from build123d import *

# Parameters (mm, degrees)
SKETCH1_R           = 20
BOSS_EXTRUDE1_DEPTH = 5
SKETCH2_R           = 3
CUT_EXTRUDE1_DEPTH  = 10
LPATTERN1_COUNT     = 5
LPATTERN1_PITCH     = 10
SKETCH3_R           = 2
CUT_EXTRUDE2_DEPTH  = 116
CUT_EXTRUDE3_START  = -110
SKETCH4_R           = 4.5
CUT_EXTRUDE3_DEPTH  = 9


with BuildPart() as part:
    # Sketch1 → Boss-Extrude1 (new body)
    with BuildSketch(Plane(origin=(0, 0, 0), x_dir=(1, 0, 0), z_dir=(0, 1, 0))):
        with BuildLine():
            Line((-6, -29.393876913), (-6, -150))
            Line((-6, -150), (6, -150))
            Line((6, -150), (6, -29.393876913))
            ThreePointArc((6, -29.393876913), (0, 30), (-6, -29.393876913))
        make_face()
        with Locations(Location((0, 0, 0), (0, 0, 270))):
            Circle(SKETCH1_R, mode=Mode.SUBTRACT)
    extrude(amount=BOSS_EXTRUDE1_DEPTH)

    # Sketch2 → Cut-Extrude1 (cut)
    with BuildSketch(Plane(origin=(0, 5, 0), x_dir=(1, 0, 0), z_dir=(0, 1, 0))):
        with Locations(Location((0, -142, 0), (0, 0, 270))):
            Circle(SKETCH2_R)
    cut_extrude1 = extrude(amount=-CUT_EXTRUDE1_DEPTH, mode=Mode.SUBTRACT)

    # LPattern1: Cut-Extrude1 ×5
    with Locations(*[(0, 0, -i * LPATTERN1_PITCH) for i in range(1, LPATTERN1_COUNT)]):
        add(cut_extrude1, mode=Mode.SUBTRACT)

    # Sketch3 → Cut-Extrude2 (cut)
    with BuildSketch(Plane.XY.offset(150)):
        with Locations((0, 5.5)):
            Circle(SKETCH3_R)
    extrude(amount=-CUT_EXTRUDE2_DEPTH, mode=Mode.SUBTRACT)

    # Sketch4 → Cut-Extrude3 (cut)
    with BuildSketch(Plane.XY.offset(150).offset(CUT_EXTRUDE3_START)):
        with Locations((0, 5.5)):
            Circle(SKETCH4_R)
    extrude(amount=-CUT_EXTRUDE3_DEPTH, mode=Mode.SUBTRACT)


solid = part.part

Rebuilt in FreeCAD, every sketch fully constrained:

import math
import FreeCAD as App
import Part
import Sketcher
from FreeCAD import Vector

doc = App.newDocument("Part")
body = doc.addObject("PartDesign::Body", "Body")

sketch1 = body.newObject("Sketcher::SketchObject", "Sketch")
sketch1.AttachmentSupport = (doc.getObject("XZ_Plane"), [""])
sketch1.MapMode = "FlatFace"
sketch1.addGeometry(Part.LineSegment(Vector(-6, 29, 0), Vector(-6, 150, 0)), False)
sketch1.addGeometry(Part.LineSegment(Vector(-6, 150, 0), Vector(6, 150, 0)), False)
sketch1.addGeometry(Part.LineSegment(Vector(6, 150, 0), Vector(6, 29, 0)), False)
sketch1.addGeometry(Part.ArcOfCircle(Part.Circle(Vector(0, 0, 0), Vector(0, 0, 1), 30), math.radians(102), math.radians(438)), False)
sketch1.addGeometry(Part.Circle(Vector(0, 0, 0), Vector(0, 0, 1), 20), False)
sketch1.addConstraint(Sketcher.Constraint("Coincident", 0, 2, 1, 1))
sketch1.addConstraint(Sketcher.Constraint("Coincident", 1, 2, 2, 1))
sketch1.addConstraint(Sketcher.Constraint("Coincident", 2, 2, 3, 2))
sketch1.addConstraint(Sketcher.Constraint("Coincident", 3, 1, 0, 1))
sketch1.addConstraint(Sketcher.Constraint("Vertical", 0))
sketch1.addConstraint(Sketcher.Constraint("Horizontal", 1))
sketch1.addConstraint(Sketcher.Constraint("Vertical", 2))
sketch1.addConstraint(Sketcher.Constraint("Coincident", 3, 3, -1, 1))
sketch1.addConstraint(Sketcher.Constraint("Coincident", 4, 3, -1, 1))
sketch1.addConstraint(Sketcher.Constraint("Horizontal", 2, 2, 3, 1))
sketch1.addConstraint(Sketcher.Constraint("Diameter", 4, 40.0))
sketch1.addConstraint(Sketcher.Constraint("Radius", 3, 30.0))
sketch1.addConstraint(Sketcher.Constraint("DistanceX", 1, 1, 1, 2, 12.0))
sketch1.addConstraint(Sketcher.Constraint("DistanceY", -1, 1, 0, 2, 150.0))
pad1 = body.newObject("PartDesign::Pad", "Pad")
pad1.Profile = sketch1
pad1.Length = 5
pad1.Reversed = True

sketch2 = body.newObject("Sketcher::SketchObject", "Sketch001")
sketch2.AttachmentSupport = (doc.getObject("XZ_Plane"), [""])
sketch2.MapMode = "FlatFace"
sketch2.AttachmentOffset = App.Placement(Vector(0, 0, -5), App.Rotation())
sketch2.addGeometry(Part.Circle(Vector(0, 142, 0), Vector(0, 0, 1), 3), False)
sketch2.addConstraint(Sketcher.Constraint("PointOnObject", 0, 3, -2))
sketch2.addConstraint(Sketcher.Constraint("Diameter", 0, 6.0))
sketch2.addConstraint(Sketcher.Constraint("DistanceY", -1, 1, 0, 3, 142.0))
pocket1 = body.newObject("PartDesign::Pocket", "Pocket")
pocket1.Profile = sketch2
pocket1.Length = 10
pocket1.Reversed = True
doc.recompute()

linearpattern = body.newObject("PartDesign::LinearPattern", "LinearPattern")
linearpattern.Originals = [pocket1]
linearpattern.Direction = (doc.getObject("Z_Axis"), [""])
linearpattern.Mode = "offset"
linearpattern.Offset = 10
linearpattern.Occurrences = 5
linearpattern.Reversed = True
body.Tip = linearpattern

sketch3 = body.newObject("Sketcher::SketchObject", "Sketch002")
sketch3.AttachmentSupport = (doc.getObject("XY_Plane"), [""])
sketch3.MapMode = "FlatFace"
sketch3.AttachmentOffset = App.Placement(Vector(0, 0, 150), App.Rotation())
sketch3.addGeometry(Part.Circle(Vector(0, 5.5, 0), Vector(0, 0, 1), 2), False)
sketch3.addConstraint(Sketcher.Constraint("PointOnObject", 0, 3, -2))
sketch3.addConstraint(Sketcher.Constraint("Diameter", 0, 4.0))
sketch3.addConstraint(Sketcher.Constraint("DistanceY", -1, 1, 0, 3, 5.5))
pocket2 = body.newObject("PartDesign::Pocket", "Pocket001")
pocket2.Profile = sketch3
pocket2.Length = 116

sketch4 = body.newObject("Sketcher::SketchObject", "Sketch003")
sketch4.AttachmentSupport = (doc.getObject("XY_Plane"), [""])
sketch4.MapMode = "FlatFace"
sketch4.AttachmentOffset = App.Placement(Vector(0, 0, 40), App.Rotation())
sketch4.addGeometry(Part.Circle(Vector(0, 5.5, 0), Vector(0, 0, 1), 4.5), False)
sketch4.addConstraint(Sketcher.Constraint("PointOnObject", 0, 3, -2))
sketch4.addConstraint(Sketcher.Constraint("Diameter", 0, 9.0))
sketch4.addConstraint(Sketcher.Constraint("DistanceY", -1, 1, 0, 3, 5.5))
pocket3 = body.newObject("PartDesign::Pocket", "Pocket002")
pocket3.Profile = sketch4
pocket3.Length = 9

doc.recompute()
